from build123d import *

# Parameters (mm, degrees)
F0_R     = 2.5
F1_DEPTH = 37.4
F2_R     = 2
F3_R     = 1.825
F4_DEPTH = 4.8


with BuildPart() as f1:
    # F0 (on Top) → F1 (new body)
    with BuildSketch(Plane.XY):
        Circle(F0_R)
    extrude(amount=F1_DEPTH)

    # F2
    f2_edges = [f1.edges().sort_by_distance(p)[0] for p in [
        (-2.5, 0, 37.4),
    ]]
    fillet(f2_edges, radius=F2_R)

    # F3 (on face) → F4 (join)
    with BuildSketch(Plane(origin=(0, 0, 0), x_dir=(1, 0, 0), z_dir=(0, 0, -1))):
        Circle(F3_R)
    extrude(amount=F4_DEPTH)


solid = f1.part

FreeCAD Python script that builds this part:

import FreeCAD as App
import Part
import Sketcher

V = App.Vector
Q = App.Units.Quantity


def edges_at(feature, points):
    """Names of the edges that pass closest to the given points."""
    edges = feature.Shape.Edges
    near = lambda p: min(range(len(edges)), key=lambda i: edges[i].distToShape(Part.Vertex(*p))[0])
    return sorted({f"Edge{near(p) + 1}" for p in points})

doc = App.newDocument("Part")
body = doc.addObject("PartDesign::Body", "Body")

sketch1 = body.newObject("Sketcher::SketchObject", "Sketch")
sketch1.AttachmentSupport = (doc.getObject("XY_Plane"), [""])
sketch1.MapMode = "FlatFace"
sketch1.addGeometry(Part.Circle(V(0, 0, 0), V(0, 0, 1), 2.5), False)
sketch1.addConstraint([
    Sketcher.Constraint("Coincident", 0, 3, -1, 1),
    Sketcher.Constraint("Diameter", 0, Q("5 mm")),
])
pad1 = body.newObject("PartDesign::Pad", "Pad")
pad1.Profile = sketch1
pad1.Length = 37.4
doc.recompute()

fillet = body.newObject("PartDesign::Fillet", "Fillet")
fillet.Base = (pad1, edges_at(pad1, [(-2.5, 0, 37.4)]))
fillet.Radius = 2

sketch2 = body.newObject("Sketcher::SketchObject", "Sketch001")
sketch2.AttachmentSupport = (doc.getObject("XY_Plane"), [""])
sketch2.MapMode = "FlatFace"
sketch2.addGeometry(Part.Circle(V(0, 0, 0), V(0, 0, 1), 1.8), False)
sketch2.addConstraint([
    Sketcher.Constraint("Coincident", 0, 3, -1, 1),
    Sketcher.Constraint("Diameter", 0, Q("3.65 mm")),
])
pad2 = body.newObject("PartDesign::Pad", "Pad001")
pad2.Profile = sketch2
pad2.Length = 4.8
pad2.Reversed = True

doc.recompute()
